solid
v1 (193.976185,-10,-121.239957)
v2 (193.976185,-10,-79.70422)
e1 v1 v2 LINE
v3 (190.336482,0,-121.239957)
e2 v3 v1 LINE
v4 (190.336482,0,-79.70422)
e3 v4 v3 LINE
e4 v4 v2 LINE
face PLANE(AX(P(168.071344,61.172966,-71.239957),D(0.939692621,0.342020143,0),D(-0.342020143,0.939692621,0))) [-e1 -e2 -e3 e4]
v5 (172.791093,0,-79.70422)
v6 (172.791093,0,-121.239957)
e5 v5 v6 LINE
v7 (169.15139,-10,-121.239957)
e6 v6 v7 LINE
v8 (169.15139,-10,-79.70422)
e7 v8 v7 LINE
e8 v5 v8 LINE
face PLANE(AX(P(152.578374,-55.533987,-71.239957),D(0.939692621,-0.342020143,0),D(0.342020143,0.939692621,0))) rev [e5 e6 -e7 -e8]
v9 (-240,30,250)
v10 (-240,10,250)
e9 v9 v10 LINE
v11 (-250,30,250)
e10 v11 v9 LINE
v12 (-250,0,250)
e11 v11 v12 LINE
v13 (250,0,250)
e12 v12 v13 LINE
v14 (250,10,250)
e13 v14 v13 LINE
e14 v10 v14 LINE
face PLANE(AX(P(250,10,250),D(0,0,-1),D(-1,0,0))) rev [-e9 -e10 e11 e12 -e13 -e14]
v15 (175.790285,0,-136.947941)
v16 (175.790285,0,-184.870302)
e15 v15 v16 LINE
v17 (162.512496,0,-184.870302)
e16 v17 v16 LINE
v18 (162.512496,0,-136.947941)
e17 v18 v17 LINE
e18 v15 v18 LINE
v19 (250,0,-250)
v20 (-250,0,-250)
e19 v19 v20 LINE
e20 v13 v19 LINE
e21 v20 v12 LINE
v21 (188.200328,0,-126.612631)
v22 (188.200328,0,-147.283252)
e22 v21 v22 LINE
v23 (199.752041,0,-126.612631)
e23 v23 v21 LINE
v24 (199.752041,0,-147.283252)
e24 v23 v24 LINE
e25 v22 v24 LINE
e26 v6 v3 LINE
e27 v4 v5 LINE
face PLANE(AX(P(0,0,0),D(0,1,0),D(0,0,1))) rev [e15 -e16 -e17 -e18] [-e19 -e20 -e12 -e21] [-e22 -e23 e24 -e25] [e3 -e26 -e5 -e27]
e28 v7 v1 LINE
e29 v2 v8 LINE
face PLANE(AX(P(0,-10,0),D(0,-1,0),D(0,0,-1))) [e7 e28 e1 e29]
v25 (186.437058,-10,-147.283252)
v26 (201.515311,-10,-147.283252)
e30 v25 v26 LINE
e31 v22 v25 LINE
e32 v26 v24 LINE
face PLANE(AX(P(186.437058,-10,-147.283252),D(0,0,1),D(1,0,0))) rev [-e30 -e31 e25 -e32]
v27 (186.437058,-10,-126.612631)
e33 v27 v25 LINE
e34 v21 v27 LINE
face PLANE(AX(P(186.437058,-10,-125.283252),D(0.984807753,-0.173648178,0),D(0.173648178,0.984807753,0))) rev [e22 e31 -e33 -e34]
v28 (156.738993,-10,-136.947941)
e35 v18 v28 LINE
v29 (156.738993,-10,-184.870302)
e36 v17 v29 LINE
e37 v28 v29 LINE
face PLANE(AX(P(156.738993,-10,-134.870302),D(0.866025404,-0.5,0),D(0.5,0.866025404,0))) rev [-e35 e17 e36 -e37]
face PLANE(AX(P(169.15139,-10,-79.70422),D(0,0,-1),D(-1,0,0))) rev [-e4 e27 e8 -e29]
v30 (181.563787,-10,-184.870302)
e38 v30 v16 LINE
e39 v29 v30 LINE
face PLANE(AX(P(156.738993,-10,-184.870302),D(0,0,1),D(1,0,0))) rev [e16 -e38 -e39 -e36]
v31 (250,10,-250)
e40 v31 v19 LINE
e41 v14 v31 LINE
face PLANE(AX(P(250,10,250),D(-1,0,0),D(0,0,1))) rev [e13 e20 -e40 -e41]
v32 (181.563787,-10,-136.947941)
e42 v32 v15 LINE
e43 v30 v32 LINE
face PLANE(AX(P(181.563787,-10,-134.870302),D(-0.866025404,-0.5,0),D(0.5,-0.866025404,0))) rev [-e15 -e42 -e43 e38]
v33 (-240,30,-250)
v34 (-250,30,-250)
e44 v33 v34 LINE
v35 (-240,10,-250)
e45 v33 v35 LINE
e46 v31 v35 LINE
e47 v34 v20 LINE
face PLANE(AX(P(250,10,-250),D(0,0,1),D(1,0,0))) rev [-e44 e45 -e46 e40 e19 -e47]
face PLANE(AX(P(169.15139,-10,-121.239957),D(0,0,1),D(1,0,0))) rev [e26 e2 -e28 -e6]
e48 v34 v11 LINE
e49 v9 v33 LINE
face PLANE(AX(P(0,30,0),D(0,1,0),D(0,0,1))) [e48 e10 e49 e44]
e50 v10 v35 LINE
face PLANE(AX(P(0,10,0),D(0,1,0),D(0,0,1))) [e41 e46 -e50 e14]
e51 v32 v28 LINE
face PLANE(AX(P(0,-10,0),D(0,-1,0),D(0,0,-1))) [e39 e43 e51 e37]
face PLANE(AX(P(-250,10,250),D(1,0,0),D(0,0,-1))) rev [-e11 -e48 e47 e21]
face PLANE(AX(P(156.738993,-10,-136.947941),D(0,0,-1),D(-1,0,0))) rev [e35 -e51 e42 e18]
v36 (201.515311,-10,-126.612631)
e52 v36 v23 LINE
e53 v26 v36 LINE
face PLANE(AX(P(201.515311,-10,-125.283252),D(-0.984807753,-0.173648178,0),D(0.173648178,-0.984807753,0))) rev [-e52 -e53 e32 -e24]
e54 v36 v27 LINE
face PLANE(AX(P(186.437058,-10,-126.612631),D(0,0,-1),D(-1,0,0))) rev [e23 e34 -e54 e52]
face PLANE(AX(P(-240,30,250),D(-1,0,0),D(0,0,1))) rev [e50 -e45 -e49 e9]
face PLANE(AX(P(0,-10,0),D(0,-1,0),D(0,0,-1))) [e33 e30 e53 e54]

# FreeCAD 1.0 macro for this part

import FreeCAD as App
import Part
import Sketcher
Q = App.Units.Quantity


def add_polygon(sketch, points):
    """Adds a closed chain of lines whose ends are joined by coincident constraints."""
    first, n = sketch.GeometryCount, len(points)
    for a, b in zip(points, points[1:] + points[:1]):
        sketch.addGeometry(Part.LineSegment(App.Vector(*a, 0), App.Vector(*b, 0)), False)
    for i in range(n):
        sketch.addConstraint(Sketcher.Constraint("Coincident", first + i, 2, first + (i + 1) % n, 1))

doc = App.newDocument("Part")
params = doc.addObject("Spreadsheet::Sheet", "Params")
for row, (alias, value) in enumerate([
    ("sketch1_width", "500 mm"),
    ("pad1_length", "10 mm"),
    ("sketch2_width", "10 mm"),
    ("sketch2_height", "500 mm"),
    ("pad2_length", "20 mm"),
    ("pad3_length", "10 mm"),
    ("sketch4_height", "10 mm"),
    ("pocket1_length", "50 mm"),
    ("sketch5_height", "10 mm"),
    ("pocket2_length", "50 mm"),
    ("sketch6_height", "10 mm"),
    ("pocket3_length", "22 mm"),
], start=1):
    params.set(f"A{row}", alias)
    params.set(f"B{row}", "=" + value)
    params.setAlias(f"B{row}", alias)

body = doc.addObject("PartDesign::Body", "Body")

# Sketch on XZ plane
sketch1 = body.newObject("Sketcher::SketchObject", "Sketch")
sketch1.AttachmentSupport = (doc.getObject("XZ_Plane"), [""])
sketch1.MapMode = "FlatFace"
add_polygon(sketch1, [(-250, -250), (-250, 250), (250, 250), (250, -250)])  # lines 0-3
sketch1.addConstraint(Sketcher.Constraint("Vertical", 0))
sketch1.addConstraint(Sketcher.Constraint("Horizontal", 1))
sketch1.addConstraint(Sketcher.Constraint("Vertical", 2))
sketch1.addConstraint(Sketcher.Constraint("Horizontal", 3))
sketch1.addConstraint(Sketcher.Constraint("Symmetric", 0, 2, 2, 2, -1, 1))
sketch1.addConstraint(Sketcher.Constraint("Equal", 3, 0))
sketch1.addConstraint(Sketcher.Constraint("DistanceX", 1, 1, 1, 2, Q("500 mm")))
sketch1.setExpression("Constraints[10]", "Params.sketch1_width")
pad1 = body.newObject("PartDesign::Pad", "Pad")
pad1.Profile = sketch1
pad1.setExpression("Length", "Params.pad1_length")
pad1.Reversed = True

# Sketch on XZ plane
sketch2 = body.newObject("Sketcher::SketchObject", "Sketch001")
sketch2.AttachmentSupport = (doc.getObject("XZ_Plane"), [""])
sketch2.MapMode = "FlatFace"
sketch2.AttachmentOffset = App.Placement(App.Vector(0, 0, -10), App.Rotation())
add_polygon(sketch2, [(-250, -250), (-250, 250), (-240, 250), (-240, -250)])  # lines 0-3
sketch2.addConstraint(Sketcher.Constraint("Vertical", 0))
sketch2.addConstraint(Sketcher.Constraint("Horizontal", 1))
sketch2.addConstraint(Sketcher.Constraint("Vertical", 2))
sketch2.addConstraint(Sketcher.Constraint("Horizontal", 3))
sketch2.addConstraint(Sketcher.Constraint("DistanceX", 1, 1, 1, 2, Q("10 mm")))
sketch2.addConstraint(Sketcher.Constraint("DistanceY", 0, 1, 0, 2, Q("500 mm")))
sketch2.addConstraint(Sketcher.Constraint("DistanceX", 0, 2, -1, 1, Q("250 mm")))
sketch2.addConstraint(Sketcher.Constraint("DistanceY", -1, 1, 0, 2, Q("250 mm")))
sketch2.setExpression("Constraints[8]", "Params.sketch2_width")
sketch2.setExpression("Constraints[9]", "Params.sketch2_height")
pad2 = body.newObject("PartDesign::Pad", "Pad001")
pad2.Profile = sketch2
pad2.setExpression("Length", "Params.pad2_length")
pad2.Reversed = True

# Sketch on XZ plane
sketch3 = body.newObject("Sketcher::SketchObject", "Sketch002")
sketch3.AttachmentSupport = (doc.getObject("XZ_Plane"), [""])
sketch3.MapMode = "FlatFace"
add_polygon(sketch3, [(169.15139, -79.70422), (169.15139, -121.239957), (193.976185, -121.239957), (193.976185, -79.70422)])  # lines 0-3
add_polygon(sketch3, [(156.738993, -136.947941), (156.738993, -184.870302), (181.563787, -184.870302), (181.563787, -136.947941)])  # lines 4-7
add_polygon(sketch3, [(186.437058, -126.612631), (186.437058, -147.283252), (201.515311, -147.283252), (201.515311, -126.612631)])  # lines 8-11
sketch3.addConstraint(Sketcher.Constraint("Vertical", 0))
sketch3.addConstraint(Sketcher.Constraint("Horizontal", 1))
sketch3.addConstraint(Sketcher.Constraint("Vertical", 2))
sketch3.addConstraint(Sketcher.Constraint("Horizontal", 3))
sketch3.addConstraint(Sketcher.Constraint("Vertical", 4))
sketch3.addConstraint(Sketcher.Constraint("Horizontal", 5))
sketch3.addConstraint(Sketcher.Constraint("Vertical", 6))
sketch3.addConstraint(Sketcher.Constraint("Horizontal", 7))
sketch3.addConstraint(Sketcher.Constraint("Vertical", 8))
sketch3.addConstraint(Sketcher.Constraint("Horizontal", 9))
sketch3.addConstraint(Sketcher.Constraint("Vertical", 10))
sketch3.addConstraint(Sketcher.Constraint("Horizontal", 11))
sketch3.addConstraint(Sketcher.Constraint("Equal", 3, 5))
sketch3.addConstraint(Sketcher.Constraint("DistanceY", 4, 2, 4, 1, Q("47.922361 mm")))
sketch3.addConstraint(Sketcher.Constraint("DistanceY", 8, 2, 8, 1, Q("20.670621 mm")))
sketch3.addConstraint(Sketcher.Constraint("DistanceX", 1, 1, 1, 2, Q("24.824795 mm")))
sketch3.addConstraint(Sketcher.Constraint("DistanceX", 9, 1, 9, 2, Q("15.078253 mm")))
sketch3.addConstraint(Sketcher.Constraint("DistanceY", 0, 2, 0, 1, Q("41.535737 mm")))
sketch3.addConstraint(Sketcher.Constraint("DistanceX", -1, 1, 0, 2, Q("169.15139 mm")))
sketch3.addConstraint(Sketcher.Constraint("DistanceY", 2, 2, -1, 1, Q("79.70422 mm")))
sketch3.addConstraint(Sketcher.Constraint("DistanceY", 6, 2, -1, 1, Q("136.947941 mm")))
sketch3.addConstraint(Sketcher.Constraint("DistanceX", -1, 1, 8, 2, Q("186.437058 mm")))
sketch3.addConstraint(Sketcher.Constraint("DistanceY", 8, 2, -1, 1, Q("147.283252 mm")))
sketch3.addConstraint(Sketcher.Constraint("DistanceX", 4, 2, 1, 2, Q("37.237192 mm")))
pad3 = body.newObject("PartDesign::Pad", "Pad002")
pad3.Profile = sketch3
pad3.setExpression("Length", "Params.pad3_length")

# Sketch on XY plane
sketch4 = body.newObject("Sketcher::SketchObject", "Sketch003")
sketch4.AttachmentSupport = (doc.getObject("XY_Plane"), [""])
sketch4.MapMode = "FlatFace"
sketch4.AttachmentOffset = App.Placement(App.Vector(0, 0, -184.870302), App.Rotation())
add_polygon(sketch4, [(162.512496, 0), (156.738993, -10), (156.738993, 0)])  # lines 0-2
add_polygon(sketch4, [(175.790285, 0), (181.563787, 0), (181.563787, -10)])  # lines 3-5
sketch4.addConstraint(Sketcher.Constraint("Vertical", 1))
sketch4.addConstraint(Sketcher.Constraint("Horizontal", 2))
sketch4.addConstraint(Sketcher.Constraint("Horizontal", 3))
sketch4.addConstraint(Sketcher.Constraint("Vertical", 4))
sketch4.addConstraint(Sketcher.Constraint("PointOnObject", 1, 2, -1))
sketch4.addConstraint(Sketcher.Constraint("PointOnObject", 3, 2, -1))
sketch4.addConstraint(Sketcher.Constraint("Horizontal", 0, 2, 4, 2))
sketch4.addConstraint(Sketcher.Constraint("Equal", 2, 3))
sketch4.addConstraint(Sketcher.Constraint("DistanceY", 1, 1, 1, 2, Q("10 mm")))
sketch4.addConstraint(Sketcher.Constraint("Angle", 0, Q("-120 deg")))
sketch4.addConstraint(Sketcher.Constraint("DistanceX", 2, 2, 3, 2, Q("19.051292 mm")))
sketch4.addConstraint(Sketcher.Constraint("DistanceX", -1, 1, 0, 2, Q("156.738993 mm")))
sketch4.setExpression("Constraints[14]", "Params.sketch4_height")
pocket1 = body.newObject("PartDesign::Pocket", "Pocket")
pocket1.Profile = sketch4
pocket1.setExpression("Length", "Params.pocket1_length")
pocket1.Reversed = True

# Sketch on XY plane
sketch5 = body.newObject("Sketcher::SketchObject", "Sketch004")
sketch5.AttachmentSupport = (doc.getObject("XY_Plane"), [""])
sketch5.MapMode = "FlatFace"
sketch5.AttachmentOffset = App.Placement(App.Vector(0, 0, -121.239957), App.Rotation())
add_polygon(sketch5, [(172.791093, 0), (169.15139, -10), (169.15139, 0)])  # lines 0-2
add_polygon(sketch5, [(193.976185, -10), (190.336482, 0), (193.976185, 0)])  # lines 3-5
sketch5.addConstraint(Sketcher.Constraint("Vertical", 1))
sketch5.addConstraint(Sketcher.Constraint("Horizontal", 2))
sketch5.addConstraint(Sketcher.Constraint("Horizontal", 4))
sketch5.addConstraint(Sketcher.Constraint("Vertical", 5))
sketch5.addConstraint(Sketcher.Constraint("PointOnObject", 1, 2, -1))
sketch5.addConstraint(Sketcher.Constraint("PointOnObject", 3, 2, -1))
sketch5.addConstraint(Sketcher.Constraint("Horizontal", 0, 2, 5, 2))
sketch5.addConstraint(Sketcher.Constraint("Equal", 2, 4))
sketch5.addConstraint(Sketcher.Constraint("DistanceY", 1, 1, 1, 2, Q("10 mm")))
sketch5.addConstraint(Sketcher.Constraint("Angle", 0, Q("-110 deg")))
sketch5.addConstraint(Sketcher.Constraint("DistanceX", -1, 1, 0, 2, Q("169.15139 mm")))
sketch5.addConstraint(Sketcher.Constraint("DistanceX", 2, 2, 3, 2, Q("17.54539 mm")))
sketch5.setExpression("Constraints[14]", "Params.sketch5_height")
pocket2 = body.newObject("PartDesign::Pocket", "Pocket001")
pocket2.Profile = sketch5
pocket2.setExpression("Length", "Params.pocket2_length")
pocket2.Reversed = True

# Sketch on XY plane
sketch6 = body.newObject("Sketcher::SketchObject", "Sketch005")
sketch6.AttachmentSupport = (doc.getObject("XY_Plane"), [""])
sketch6.MapMode = "FlatFace"
sketch6.AttachmentOffset = App.Placement(App.Vector(0, 0, -147.283252), App.Rotation())
add_polygon(sketch6, [(188.200328, 0), (186.437058, -10), (186.437058, 0)])  # lines 0-2
add_polygon(sketch6, [(199.752041, 0), (201.515311, 0), (201.515311, -10)])  # lines 3-5
sketch6.addConstraint(Sketcher.Constraint("Vertical", 1))
sketch6.addConstraint(Sketcher.Constraint("Horizontal", 2))
sketch6.addConstraint(Sketcher.Constraint("Horizontal", 3))
sketch6.addConstraint(Sketcher.Constraint("Vertical", 4))
sketch6.addConstraint(Sketcher.Constraint("PointOnObject", 1, 2, -1))
sketch6.addConstraint(Sketcher.Constraint("PointOnObject", 3, 2, -1))
sketch6.addConstraint(Sketcher.Constraint("Horizontal", 0, 2, 4, 2))
sketch6.addConstraint(Sketcher.Constraint("Equal", 2, 3))
sketch6.addConstraint(Sketcher.Constraint("DistanceY", 1, 1, 1, 2, Q("10 mm")))
sketch6.addConstraint(Sketcher.Constraint("Angle", 0, Q("-100 deg")))
sketch6.addConstraint(Sketcher.Constraint("DistanceX", -1, 1, 0, 2, Q("186.437058 mm")))
sketch6.addConstraint(Sketcher.Constraint("DistanceX", -1, 1, 3, 2, Q("201.515311 mm")))
sketch6.setExpression("Constraints[14]", "Params.sketch6_height")
pocket3 = body.newObject("PartDesign::Pocket", "Pocket002")
pocket3.Profile = sketch6
pocket3.setExpression("Length", "Params.pocket3_length")
pocket3.Reversed = True

doc.recompute()
